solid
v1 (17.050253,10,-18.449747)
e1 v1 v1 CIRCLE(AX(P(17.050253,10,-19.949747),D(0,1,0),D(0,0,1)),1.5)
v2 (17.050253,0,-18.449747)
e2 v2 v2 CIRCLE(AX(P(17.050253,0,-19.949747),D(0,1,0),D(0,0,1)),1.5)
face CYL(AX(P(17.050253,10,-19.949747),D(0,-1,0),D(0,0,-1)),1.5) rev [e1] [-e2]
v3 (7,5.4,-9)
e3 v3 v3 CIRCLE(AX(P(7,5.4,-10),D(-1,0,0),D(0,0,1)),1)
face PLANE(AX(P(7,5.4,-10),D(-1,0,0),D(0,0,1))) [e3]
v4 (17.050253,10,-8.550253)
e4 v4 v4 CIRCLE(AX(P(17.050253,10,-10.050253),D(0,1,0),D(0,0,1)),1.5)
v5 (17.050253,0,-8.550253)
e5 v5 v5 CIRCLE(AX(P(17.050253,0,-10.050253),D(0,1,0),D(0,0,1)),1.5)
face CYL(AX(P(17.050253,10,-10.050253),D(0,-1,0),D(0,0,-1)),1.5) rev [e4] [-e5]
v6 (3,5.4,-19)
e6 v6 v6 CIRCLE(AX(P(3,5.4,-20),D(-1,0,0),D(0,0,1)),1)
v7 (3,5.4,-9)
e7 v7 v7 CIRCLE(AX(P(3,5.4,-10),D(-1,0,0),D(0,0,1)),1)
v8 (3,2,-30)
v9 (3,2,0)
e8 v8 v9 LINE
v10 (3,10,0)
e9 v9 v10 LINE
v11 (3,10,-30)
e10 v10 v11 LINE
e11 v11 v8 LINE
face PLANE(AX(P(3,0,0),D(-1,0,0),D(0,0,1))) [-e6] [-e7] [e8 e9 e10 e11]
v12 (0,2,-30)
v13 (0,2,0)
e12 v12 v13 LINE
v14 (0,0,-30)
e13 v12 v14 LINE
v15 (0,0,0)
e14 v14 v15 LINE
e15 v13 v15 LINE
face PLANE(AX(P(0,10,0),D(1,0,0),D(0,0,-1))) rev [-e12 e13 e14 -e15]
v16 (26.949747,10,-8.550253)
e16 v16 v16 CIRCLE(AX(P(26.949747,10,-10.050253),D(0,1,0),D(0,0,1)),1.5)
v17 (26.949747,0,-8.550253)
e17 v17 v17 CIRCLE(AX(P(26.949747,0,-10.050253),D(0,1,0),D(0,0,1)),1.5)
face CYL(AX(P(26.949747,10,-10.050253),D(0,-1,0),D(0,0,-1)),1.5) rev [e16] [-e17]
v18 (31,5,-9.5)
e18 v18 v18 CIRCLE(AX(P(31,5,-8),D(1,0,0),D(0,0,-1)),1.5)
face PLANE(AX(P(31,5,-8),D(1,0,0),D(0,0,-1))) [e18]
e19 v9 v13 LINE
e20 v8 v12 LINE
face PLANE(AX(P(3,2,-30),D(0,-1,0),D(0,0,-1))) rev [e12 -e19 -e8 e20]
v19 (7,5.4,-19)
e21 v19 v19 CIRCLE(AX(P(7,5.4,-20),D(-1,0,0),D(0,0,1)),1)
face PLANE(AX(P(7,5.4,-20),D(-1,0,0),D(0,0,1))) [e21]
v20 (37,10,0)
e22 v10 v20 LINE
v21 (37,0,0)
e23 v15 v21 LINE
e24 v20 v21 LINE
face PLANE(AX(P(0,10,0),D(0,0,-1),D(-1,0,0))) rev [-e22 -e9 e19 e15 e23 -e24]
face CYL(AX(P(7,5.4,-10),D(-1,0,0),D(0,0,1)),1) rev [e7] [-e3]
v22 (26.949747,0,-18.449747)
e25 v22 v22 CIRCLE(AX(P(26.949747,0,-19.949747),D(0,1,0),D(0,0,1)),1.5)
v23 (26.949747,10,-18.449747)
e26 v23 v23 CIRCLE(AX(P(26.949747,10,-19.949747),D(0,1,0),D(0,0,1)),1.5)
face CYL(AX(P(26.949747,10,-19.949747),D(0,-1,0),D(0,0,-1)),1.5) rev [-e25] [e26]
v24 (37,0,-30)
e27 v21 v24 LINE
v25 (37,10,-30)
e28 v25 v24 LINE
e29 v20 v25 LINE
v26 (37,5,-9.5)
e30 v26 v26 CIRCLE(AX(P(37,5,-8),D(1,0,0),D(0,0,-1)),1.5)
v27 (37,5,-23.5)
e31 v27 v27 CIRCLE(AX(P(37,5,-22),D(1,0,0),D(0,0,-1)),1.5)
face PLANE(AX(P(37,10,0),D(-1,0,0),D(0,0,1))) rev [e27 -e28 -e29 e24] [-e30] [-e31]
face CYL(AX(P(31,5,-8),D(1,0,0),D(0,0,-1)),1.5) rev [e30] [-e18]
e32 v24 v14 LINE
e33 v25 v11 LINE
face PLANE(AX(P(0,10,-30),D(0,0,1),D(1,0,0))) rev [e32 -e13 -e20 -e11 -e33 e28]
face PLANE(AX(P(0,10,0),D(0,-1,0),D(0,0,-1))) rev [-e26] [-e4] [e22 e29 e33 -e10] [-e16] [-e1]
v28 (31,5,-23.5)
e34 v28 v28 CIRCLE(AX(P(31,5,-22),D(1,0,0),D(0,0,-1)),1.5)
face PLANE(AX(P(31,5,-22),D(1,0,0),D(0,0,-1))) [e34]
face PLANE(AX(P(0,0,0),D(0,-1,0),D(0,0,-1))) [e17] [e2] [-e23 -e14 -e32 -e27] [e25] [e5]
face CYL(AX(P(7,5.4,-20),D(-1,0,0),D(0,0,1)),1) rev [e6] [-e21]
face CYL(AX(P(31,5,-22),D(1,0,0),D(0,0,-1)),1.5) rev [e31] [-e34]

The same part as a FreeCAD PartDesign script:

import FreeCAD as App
import Part
import Sketcher

V = App.Vector
Q = App.Units.Quantity

doc = App.newDocument("Part")
body = doc.addObject("PartDesign::Body", "Body")

sketch1 = doc.addObject("Sketcher::SketchObject", "Sketch")
body.addObject(sketch1)
sketch1.AttachmentSupport = (doc.XZ_Plane, [""])
sketch1.MapMode = "FlatFace"
sketch1.addGeometry(Part.LineSegment(V(0, -30, 0), V(0, 0, 0)), False)
sketch1.addGeometry(Part.LineSegment(V(0, 0, 0), V(37, 0, 0)), False)
sketch1.addGeometry(Part.LineSegment(V(37, 0, 0), V(37, -30, 0)), False)
sketch1.addGeometry(Part.LineSegment(V(37, -30, 0), V(0, -30, 0)), False)
sketch1.addGeometry(Part.Circle(V(17.1, -10.1, 0), V(0, 0, 1), 1.5), False)
sketch1.addGeometry(Part.Circle(V(26.9, -10.1, 0), V(0, 0, 1), 1.5), False)
sketch1.addGeometry(Part.Circle(V(17.1, -19.9, 0), V(0, 0, 1), 1.5), False)
sketch1.addGeometry(Part.Circle(V(26.9, -19.9, 0), V(0, 0, 1), 1.5), False)
sketch1.addConstraint(Sketcher.Constraint("Coincident", 0, 2, 1, 1))
sketch1.addConstraint(Sketcher.Constraint("Coincident", 1, 2, 2, 1))
sketch1.addConstraint(Sketcher.Constraint("Coincident", 2, 2, 3, 1))
sketch1.addConstraint(Sketcher.Constraint("Coincident", 3, 2, 0, 1))
sketch1.addConstraint(Sketcher.Constraint("Vertical", 0))
sketch1.addConstraint(Sketcher.Constraint("Horizontal", 1))
sketch1.addConstraint(Sketcher.Constraint("Vertical", 2))
sketch1.addConstraint(Sketcher.Constraint("Horizontal", 3))
sketch1.addConstraint(Sketcher.Constraint("Coincident", 0, 2, -1, 1))
sketch1.addConstraint(Sketcher.Constraint("Equal", 4, 5))
sketch1.addConstraint(Sketcher.Constraint("Equal", 5, 6))
sketch1.addConstraint(Sketcher.Constraint("Equal", 6, 7))
sketch1.addConstraint(Sketcher.Constraint("Horizontal", 4, 3, 5, 3))
sketch1.addConstraint(Sketcher.Constraint("Horizontal", 6, 3, 7, 3))
sketch1.addConstraint(Sketcher.Constraint("Vertical", 4, 3, 6, 3))
sketch1.addConstraint(Sketcher.Constraint("Vertical", 5, 3, 7, 3))
sketch1.addConstraint(Sketcher.Constraint("Diameter", 4, Q("3 mm")))
sketch1.addConstraint(Sketcher.Constraint("DistanceX", 1, 1, 1, 2, Q("37 mm")))
sketch1.addConstraint(Sketcher.Constraint("DistanceY", 0, 1, 0, 2, Q("30 mm")))
sketch1.addConstraint(Sketcher.Constraint("DistanceX", -1, 1, 4, 3, Q("17.050253 mm")))
sketch1.addConstraint(Sketcher.Constraint("DistanceY", 4, 3, -1, 1, Q("10.050253 mm")))
sketch1.addConstraint(Sketcher.Constraint("DistanceX", -1, 1, 5, 3, Q("26.949747 mm")))
sketch1.addConstraint(Sketcher.Constraint("DistanceY", 6, 3, -1, 1, Q("19.949747 mm")))
pad1 = doc.addObject("PartDesign::Pad", "Pad")
body.addObject(pad1)
pad1.Profile = sketch1
pad1.Length = 10
pad1.Reversed = True

sketch2 = doc.addObject("Sketcher::SketchObject", "Sketch001")
body.addObject(sketch2)
sketch2.AttachmentSupport = (doc.YZ_Plane, [""])
sketch2.MapMode = "FlatFace"
sketch2.AttachmentOffset = App.Placement(V(0, 0, 37), App.Rotation())
sketch2.addGeometry(Part.Circle(V(5, -8, 0), V(0, 0, 1), 1.5), False)
sketch2.addGeometry(Part.Circle(V(5, -22, 0), V(0, 0, 1), 1.5), False)
sketch2.addConstraint(Sketcher.Constraint("Equal", 0, 1))
sketch2.addConstraint(Sketcher.Constraint("Vertical", 0, 3, 1, 3))
sketch2.addConstraint(Sketcher.Constraint("Diameter", 0, Q("3 mm")))
sketch2.addConstraint(Sketcher.Constraint("DistanceX", -1, 1, 0, 3, Q("5 mm")))
sketch2.addConstraint(Sketcher.Constraint("DistanceY", 0, 3, -1, 1, Q("8 mm")))
sketch2.addConstraint(Sketcher.Constraint("DistanceY", 1, 3, -1, 1, Q("22 mm")))
pocket1 = doc.addObject("PartDesign::Pocket", "Pocket")
body.addObject(pocket1)
pocket1.Profile = sketch2
pocket1.Length = 6

sketch3 = doc.addObject("Sketcher::SketchObject", "Sketch002")
body.addObject(sketch3)
sketch3.AttachmentSupport = (doc.YZ_Plane, [""])
sketch3.MapMode = "FlatFace"
sketch3.addGeometry(Part.LineSegment(V(10, -30, 0), V(2, -30, 0)), False)
sketch3.addGeometry(Part.LineSegment(V(2, -30, 0), V(2, 0, 0)), False)
sketch3.addGeometry(Part.LineSegment(V(2, 0, 0), V(10, 0, 0)), False)
sketch3.addGeometry(Part.LineSegment(V(10, 0, 0), V(10, -30, 0)), False)
sketch3.addConstraint(Sketcher.Constraint("Coincident", 0, 2, 1, 1))
sketch3.addConstraint(Sketcher.Constraint("Coincident", 1, 2, 2, 1))
sketch3.addConstraint(Sketcher.Constraint("Coincident", 2, 2, 3, 1))
sketch3.addConstraint(Sketcher.Constraint("Coincident", 3, 2, 0, 1))
sketch3.addConstraint(Sketcher.Constraint("Horizontal", 0))
sketch3.addConstraint(Sketcher.Constraint("Vertical", 1))
sketch3.addConstraint(Sketcher.Constraint("Horizontal", 2))
sketch3.addConstraint(Sketcher.Constraint("Vertical", 3))
sketch3.addConstraint(Sketcher.Constraint("PointOnObject", 1, 2, -1))
sketch3.addConstraint(Sketcher.Constraint("DistanceX", 0, 2, 0, 1, Q("8 mm")))
sketch3.addConstraint(Sketcher.Constraint("DistanceY", 1, 1, 1, 2, Q("30 mm")))
sketch3.addConstraint(Sketcher.Constraint("DistanceX", -1, 1, 0, 2, Q("2 mm")))
pocket2 = doc.addObject("PartDesign::Pocket", "Pocket001")
body.addObject(pocket2)
pocket2.Profile = sketch3
pocket2.Length = 3
pocket2.Reversed = True

sketch4 = doc.addObject("Sketcher::SketchObject", "Sketch003")
body.addObject(sketch4)
sketch4.AttachmentSupport = (doc.YZ_Plane, [""])
sketch4.MapMode = "FlatFace"
sketch4.addGeometry(Part.Circle(V(5.4, -20, 0), V(0, 0, 1), 1), False)
sketch4.addGeometry(Part.Circle(V(5.4, -10, 0), V(0, 0, 1), 1), False)
sketch4.addConstraint(Sketcher.Constraint("Equal", 0, 1))
sketch4.addConstraint(Sketcher.Constraint("Vertical", 0, 3, 1, 3))
sketch4.addConstraint(Sketcher.Constraint("Diameter", 0, Q("2 mm")))
sketch4.addConstraint(Sketcher.Constraint("DistanceY", 0, 3, -1, 1, Q("20 mm")))
sketch4.addConstraint(Sketcher.Constraint("DistanceY", 1, 3, -1, 1, Q("10 mm")))
sketch4.addConstraint(Sketcher.Constraint("DistanceX", -1, 1, 0, 3, Q("5.4 mm")))
pocket3 = doc.addObject("PartDesign::Pocket", "Pocket002")
body.addObject(pocket3)
pocket3.Profile = sketch4
pocket3.Length = 7
pocket3.Reversed = True

doc.recompute()
